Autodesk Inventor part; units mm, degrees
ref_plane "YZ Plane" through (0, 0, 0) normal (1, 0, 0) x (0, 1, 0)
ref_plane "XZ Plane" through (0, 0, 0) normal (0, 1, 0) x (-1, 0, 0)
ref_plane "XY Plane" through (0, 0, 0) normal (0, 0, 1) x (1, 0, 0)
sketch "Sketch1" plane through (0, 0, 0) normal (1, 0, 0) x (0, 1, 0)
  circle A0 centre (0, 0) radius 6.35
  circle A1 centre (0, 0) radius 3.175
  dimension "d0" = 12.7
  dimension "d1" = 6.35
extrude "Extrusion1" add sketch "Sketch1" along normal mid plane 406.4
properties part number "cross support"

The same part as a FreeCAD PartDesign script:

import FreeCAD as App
import Part
import Sketcher

V = App.Vector
Q = App.Units.Quantity

doc = App.newDocument("Part")
body = doc.addObject("PartDesign::Body", "Body")

# Sketch on YZ plane
sketch1 = doc.addObject("Sketcher::SketchObject", "Sketch")
body.addObject(sketch1)
sketch1.AttachmentSupport = (doc.YZ_Plane, [""])
sketch1.MapMode = "FlatFace"
sketch1.addGeometry(Part.Circle(V(0, 0, 0), V(0, 0, 1), 6.35), False)
sketch1.addGeometry(Part.Circle(V(0, 0, 0), V(0, 0, 1), 3.175), False)
sketch1.addConstraint(Sketcher.Constraint("Coincident", 0, 3, -1, 1))
sketch1.addConstraint(Sketcher.Constraint("Coincident", 1, 3, -1, 1))
sketch1.addConstraint(Sketcher.Constraint("Diameter", 0, Q("0.5 in")))
sketch1.addConstraint(Sketcher.Constraint("Diameter", 1, Q("0.25 in")))
pad1 = doc.addObject("PartDesign::Pad", "Pad")
body.addObject(pad1)
pad1.Profile = sketch1
pad1.Length = Q("16 in")
pad1.Midplane = True

doc.recompute()
